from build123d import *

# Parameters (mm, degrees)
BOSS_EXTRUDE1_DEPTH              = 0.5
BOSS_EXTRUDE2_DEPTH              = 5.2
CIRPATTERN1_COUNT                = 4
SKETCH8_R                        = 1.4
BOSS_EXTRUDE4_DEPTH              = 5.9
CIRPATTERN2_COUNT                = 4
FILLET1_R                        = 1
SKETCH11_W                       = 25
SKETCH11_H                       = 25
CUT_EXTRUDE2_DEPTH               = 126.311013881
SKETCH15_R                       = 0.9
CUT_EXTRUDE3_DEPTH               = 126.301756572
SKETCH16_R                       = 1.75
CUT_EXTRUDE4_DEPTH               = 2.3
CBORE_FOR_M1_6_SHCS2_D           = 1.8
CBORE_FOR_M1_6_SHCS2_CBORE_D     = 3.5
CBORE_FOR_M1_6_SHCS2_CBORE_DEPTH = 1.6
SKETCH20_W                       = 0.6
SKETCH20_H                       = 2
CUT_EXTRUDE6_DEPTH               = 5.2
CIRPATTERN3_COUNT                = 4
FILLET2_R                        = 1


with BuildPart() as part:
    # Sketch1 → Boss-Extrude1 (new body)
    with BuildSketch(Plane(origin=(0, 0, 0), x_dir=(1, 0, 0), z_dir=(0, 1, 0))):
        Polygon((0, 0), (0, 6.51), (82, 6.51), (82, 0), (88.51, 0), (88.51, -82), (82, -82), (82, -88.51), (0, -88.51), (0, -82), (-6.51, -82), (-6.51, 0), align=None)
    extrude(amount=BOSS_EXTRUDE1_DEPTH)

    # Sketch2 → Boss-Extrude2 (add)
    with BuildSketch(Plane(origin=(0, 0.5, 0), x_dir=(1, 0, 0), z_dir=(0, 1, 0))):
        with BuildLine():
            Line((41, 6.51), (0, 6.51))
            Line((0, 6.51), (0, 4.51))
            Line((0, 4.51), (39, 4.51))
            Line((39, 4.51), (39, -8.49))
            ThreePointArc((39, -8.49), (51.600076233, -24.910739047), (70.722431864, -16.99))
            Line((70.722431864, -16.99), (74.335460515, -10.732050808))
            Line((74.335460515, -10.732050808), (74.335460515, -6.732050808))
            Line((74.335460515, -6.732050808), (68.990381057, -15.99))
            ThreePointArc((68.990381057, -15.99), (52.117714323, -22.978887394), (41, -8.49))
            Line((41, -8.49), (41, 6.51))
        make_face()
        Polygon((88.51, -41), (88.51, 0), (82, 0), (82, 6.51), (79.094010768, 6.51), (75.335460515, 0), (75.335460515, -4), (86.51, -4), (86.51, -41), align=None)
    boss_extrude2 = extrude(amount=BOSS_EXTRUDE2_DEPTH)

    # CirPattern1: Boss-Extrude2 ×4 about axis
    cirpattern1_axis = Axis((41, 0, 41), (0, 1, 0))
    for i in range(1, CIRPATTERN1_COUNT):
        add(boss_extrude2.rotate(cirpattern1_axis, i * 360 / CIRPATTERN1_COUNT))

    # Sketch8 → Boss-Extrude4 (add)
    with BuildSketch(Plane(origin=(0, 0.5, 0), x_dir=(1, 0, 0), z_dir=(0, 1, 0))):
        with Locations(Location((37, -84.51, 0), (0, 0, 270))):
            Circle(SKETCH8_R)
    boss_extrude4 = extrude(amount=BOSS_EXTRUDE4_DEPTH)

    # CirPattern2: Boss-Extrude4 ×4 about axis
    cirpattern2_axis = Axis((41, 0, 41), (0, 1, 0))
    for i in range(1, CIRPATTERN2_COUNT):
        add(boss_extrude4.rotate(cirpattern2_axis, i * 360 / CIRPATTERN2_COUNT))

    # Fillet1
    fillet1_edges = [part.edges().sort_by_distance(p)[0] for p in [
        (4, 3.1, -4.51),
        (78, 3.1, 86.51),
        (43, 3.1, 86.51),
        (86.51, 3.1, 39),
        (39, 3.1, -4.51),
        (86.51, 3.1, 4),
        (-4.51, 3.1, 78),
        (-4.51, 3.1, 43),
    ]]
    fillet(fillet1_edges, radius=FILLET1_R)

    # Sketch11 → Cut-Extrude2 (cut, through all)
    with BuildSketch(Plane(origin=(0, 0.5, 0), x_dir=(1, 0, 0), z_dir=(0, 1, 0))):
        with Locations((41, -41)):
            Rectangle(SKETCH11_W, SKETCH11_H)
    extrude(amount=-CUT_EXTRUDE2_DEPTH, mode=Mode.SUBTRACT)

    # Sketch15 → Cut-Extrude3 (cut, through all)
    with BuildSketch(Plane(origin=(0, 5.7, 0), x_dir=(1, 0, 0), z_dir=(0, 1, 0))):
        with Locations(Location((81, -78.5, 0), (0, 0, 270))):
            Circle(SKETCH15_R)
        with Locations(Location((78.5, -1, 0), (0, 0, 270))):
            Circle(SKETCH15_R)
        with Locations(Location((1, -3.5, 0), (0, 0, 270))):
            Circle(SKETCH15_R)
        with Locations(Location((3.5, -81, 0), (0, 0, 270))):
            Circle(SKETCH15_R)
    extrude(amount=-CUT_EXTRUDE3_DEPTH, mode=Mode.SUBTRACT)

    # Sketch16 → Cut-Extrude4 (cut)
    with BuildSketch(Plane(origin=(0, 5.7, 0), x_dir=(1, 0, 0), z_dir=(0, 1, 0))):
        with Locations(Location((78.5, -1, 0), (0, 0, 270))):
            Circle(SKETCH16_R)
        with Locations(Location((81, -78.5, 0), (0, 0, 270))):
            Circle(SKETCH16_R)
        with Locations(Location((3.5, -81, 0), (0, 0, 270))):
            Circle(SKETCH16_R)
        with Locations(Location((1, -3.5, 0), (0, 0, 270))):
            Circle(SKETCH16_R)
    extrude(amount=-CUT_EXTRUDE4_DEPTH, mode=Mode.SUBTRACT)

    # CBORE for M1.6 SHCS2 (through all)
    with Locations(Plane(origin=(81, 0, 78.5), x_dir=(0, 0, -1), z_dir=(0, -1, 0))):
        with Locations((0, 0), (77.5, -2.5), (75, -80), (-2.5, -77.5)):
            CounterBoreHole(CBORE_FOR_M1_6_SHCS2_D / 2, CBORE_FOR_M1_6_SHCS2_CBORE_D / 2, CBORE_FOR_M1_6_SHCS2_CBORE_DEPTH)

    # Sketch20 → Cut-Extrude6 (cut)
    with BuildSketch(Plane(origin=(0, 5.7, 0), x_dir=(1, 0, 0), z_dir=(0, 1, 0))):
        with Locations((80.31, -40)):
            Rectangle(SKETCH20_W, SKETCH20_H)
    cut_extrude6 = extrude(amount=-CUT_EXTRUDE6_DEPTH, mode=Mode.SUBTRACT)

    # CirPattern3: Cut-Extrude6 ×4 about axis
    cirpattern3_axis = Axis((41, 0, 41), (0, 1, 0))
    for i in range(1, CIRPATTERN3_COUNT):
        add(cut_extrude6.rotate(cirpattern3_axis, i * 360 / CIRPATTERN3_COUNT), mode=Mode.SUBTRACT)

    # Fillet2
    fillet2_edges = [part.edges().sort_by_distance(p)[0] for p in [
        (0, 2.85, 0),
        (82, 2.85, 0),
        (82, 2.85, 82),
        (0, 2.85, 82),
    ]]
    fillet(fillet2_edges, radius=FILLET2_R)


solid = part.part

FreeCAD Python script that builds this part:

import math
import FreeCAD as App
import Part
import Sketcher


def edges_at(feature, points):
    """Names of the edges that pass closest to the given points."""
    edges = feature.Shape.Edges
    near = lambda p: min(range(len(edges)), key=lambda i: edges[i].distToShape(Part.Vertex(*p))[0])
    return sorted({f"Edge{near(p) + 1}" for p in points})


def add_polygon(sketch, points):
    """Adds a closed chain of lines whose ends are joined by coincident constraints."""
    first, n = sketch.GeometryCount, len(points)
    for a, b in zip(points, points[1:] + points[:1]):
        sketch.addGeometry(Part.LineSegment(App.Vector(*a, 0), App.Vector(*b, 0)), False)
    for i in range(n):
        sketch.addConstraint(Sketcher.Constraint("Coincident", first + i, 2, first + (i + 1) % n, 1))

doc = App.newDocument("Part")
body = doc.addObject("PartDesign::Body", "Body")

# Sketch on XZ plane
sketch1 = body.newObject("Sketcher::SketchObject", "Sketch")
sketch1.AttachmentSupport = (doc.getObject("XZ_Plane"), [""])
sketch1.MapMode = "FlatFace"
add_polygon(sketch1, [(0, -6.51), (0, 0), (-6.51, 0), (-6.51, 82), (0, 82), (0, 88.51), (82, 88.51), (82, 82), (88.51, 82), (88.51, 0), (82, 0), (82, -6.51)])  # lines 0-11
sketch1.addConstraint([
    Sketcher.Constraint("Vertical", 0),
    Sketcher.Constraint("Horizontal", 1),
    Sketcher.Constraint("Vertical", 2),
    Sketcher.Constraint("Horizontal", 3),
    Sketcher.Constraint("Vertical", 4),
    Sketcher.Constraint("Horizontal", 5),
    Sketcher.Constraint("Vertical", 6),
    Sketcher.Constraint("Horizontal", 7),
    Sketcher.Constraint("Vertical", 8),
    Sketcher.Constraint("Horizontal", 9),
    Sketcher.Constraint("Vertical", 10),
    Sketcher.Constraint("Horizontal", 11),
    Sketcher.Constraint("Coincident", 0, 2, -1, 1),
    Sketcher.Constraint("PointOnObject", 3, 2, -2),
    Sketcher.Constraint("PointOnObject", 8, 2, -1),
    Sketcher.Constraint("Horizontal", 3, 2, 6, 2),
    Sketcher.Constraint("Vertical", 6, 2, 9, 2),
    Sketcher.Constraint("Equal", 3, 7),
    Sketcher.Constraint("Equal", 9, 0),
    Sketcher.Constraint("Equal", 11, 2),
    Sketcher.Constraint("Equal", 0, 4),
    Sketcher.Constraint("DistanceX", 5, 1, 5, 2, 82.0),
    Sketcher.Constraint("DistanceX", 1, 2, 1, 1, 6.51),
])
pad1 = body.newObject("PartDesign::Pad", "Pad")
pad1.Profile = sketch1
pad1.Length = 0.5
pad1.Reversed = True

# Sketch on XZ plane
sketch2 = body.newObject("Sketcher::SketchObject", "Sketch001")
sketch2.AttachmentSupport = (doc.getObject("XZ_Plane"), [""])
sketch2.MapMode = "FlatFace"
sketch2.AttachmentOffset = App.Placement(App.Vector(0, 0, -0.5), App.Rotation())
sketch2.addGeometry(Part.LineSegment(App.Vector(41, -6.51, 0), App.Vector(0, -6.51, 0)), False)  # 0
sketch2.addGeometry(Part.LineSegment(App.Vector(0, -6.51, 0), App.Vector(0, -4.51, 0)), False)  # 1
sketch2.addGeometry(Part.LineSegment(App.Vector(0, -4.51, 0), App.Vector(39, -4.51, 0)), False)  # 2
sketch2.addGeometry(Part.LineSegment(App.Vector(39, -4.51, 0), App.Vector(39, 8.49, 0)), False)  # 3
sketch2.addGeometry(Part.ArcOfCircle(Part.Circle(App.Vector(56, 8.49, 0), App.Vector(0, 0, 1), 17), math.radians(30), math.radians(180)), False)  # 4
sketch2.addGeometry(Part.LineSegment(App.Vector(70.722432, 16.99, 0), App.Vector(74.335461, 10.732051, 0)), False)  # 5
sketch2.addGeometry(Part.LineSegment(App.Vector(74.335461, 10.732051, 0), App.Vector(74.335461, 6.732051, 0)), False)  # 6
sketch2.addGeometry(Part.LineSegment(App.Vector(74.335461, 6.732051, 0), App.Vector(68.990381, 15.99, 0)), False)  # 7
sketch2.addGeometry(Part.ArcOfCircle(Part.Circle(App.Vector(56, 8.49, 0), App.Vector(0, 0, 1), 15), math.radians(30), math.radians(180)), False)  # 8
sketch2.addGeometry(Part.LineSegment(App.Vector(41, 8.49, 0), App.Vector(41, -6.51, 0)), False)  # 9
add_polygon(sketch2, [(88.51, 41), (88.51, 0), (82, 0), (82, -6.51), (79.094011, -6.51), (75.335461, 0), (75.335461, 4), (86.51, 4), (86.51, 41)])  # lines 10-18
sketch2.addConstraint([
    Sketcher.Constraint("Coincident", 0, 2, 1, 1),
    Sketcher.Constraint("Coincident", 1, 2, 2, 1),
    Sketcher.Constraint("Coincident", 2, 2, 3, 1),
    Sketcher.Constraint("Tangent", 3, 2, 4, 2),
    Sketcher.Constraint("Tangent", 4, 1, 5, 1),
    Sketcher.Constraint("Coincident", 5, 2, 6, 1),
    Sketcher.Constraint("Coincident", 6, 2, 7, 1),
    Sketcher.Constraint("Tangent", 7, 2, 8, 1),
    Sketcher.Constraint("Tangent", 8, 2, 9, 1),
    Sketcher.Constraint("Coincident", 9, 2, 0, 1),
    Sketcher.Constraint("Horizontal", 0),
    Sketcher.Constraint("Vertical", 1),
    Sketcher.Constraint("Horizontal", 2),
    Sketcher.Constraint("Vertical", 3),
    Sketcher.Constraint("Vertical", 6),
    Sketcher.Constraint("Vertical", 9),
    Sketcher.Constraint("Vertical", 10),
    Sketcher.Constraint("Horizontal", 11),
    Sketcher.Constraint("Vertical", 12),
    Sketcher.Constraint("Horizontal", 13),
    Sketcher.Constraint("Vertical", 15),
    Sketcher.Constraint("Horizontal", 16),
    Sketcher.Constraint("Vertical", 17),
    Sketcher.Constraint("Horizontal", 18),
    Sketcher.Constraint("Coincident", 8, 3, 4, 3),
    Sketcher.Constraint("PointOnObject", 0, 2, -2),
    Sketcher.Constraint("PointOnObject", 10, 2, -1),
    Sketcher.Constraint("PointOnObject", 14, 2, -1),
    Sketcher.Constraint("Parallel", 5, 7),
    Sketcher.Constraint("Parallel", 7, 14),
    Sketcher.Constraint("Horizontal", 9, 2, 12, 2),
    Sketcher.Constraint("Equal", 18, 1),
    Sketcher.Constraint("Equal", 0, 10),
    Sketcher.Constraint("Equal", 11, 12),
    Sketcher.Constraint("Equal", 6, 15),
    Sketcher.Constraint("Radius", 4, 17.0),
    Sketcher.Constraint("Radius", 8, 15.0),
    Sketcher.Constraint("DistanceX", 0, 2, 0, 1, 41.0),
    Sketcher.Constraint("DistanceX", 18, 1, 18, 2, 2.0),
    Sketcher.Constraint("DistanceY", 3, 1, 3, 2, 13.0),
    Sketcher.Constraint("DistanceY", 6, 2, 6, 1, 4.0),
    Sketcher.Constraint("DistanceX", -1, 1, 11, 2, 82.0),
    Sketcher.Constraint("DistanceX", 6, 2, 14, 2, 1.0),
    Sketcher.Constraint("DistanceX", 11, 2, 11, 1, 6.51),
    Sketcher.Constraint("DistanceX", 13, 2, 13, 1, 2.905989),
])
pad2 = body.newObject("PartDesign::Pad", "Pad001")
pad2.Profile = sketch2
pad2.Length = 5.2
pad2.Reversed = True
doc.recompute()

datumline = body.newObject("PartDesign::Line", "DatumLine")
datumline.Placement = App.Placement(App.Vector(41, 0, 41), App.Rotation(App.Vector(0, 0, 1), App.Vector(0, 1, 0)))
polarpattern = body.newObject("PartDesign::PolarPattern", "PolarPattern")
polarpattern.Originals = [pad2]
polarpattern.Axis = (datumline, [""])
polarpattern.Angle = 360
polarpattern.Occurrences = 4
body.Tip = polarpattern

# Sketch on XZ plane
sketch3 = body.newObject("Sketcher::SketchObject", "Sketch002")
sketch3.AttachmentSupport = (doc.getObject("XZ_Plane"), [""])
sketch3.MapMode = "FlatFace"
sketch3.AttachmentOffset = App.Placement(App.Vector(0, 0, -0.5), App.Rotation())
sketch3.addGeometry(Part.Circle(App.Vector(37, 84.51, 0), App.Vector(0, 0, 1), 1.4), False)
sketch3.addConstraint([
    Sketcher.Constraint("Diameter", 0, 2.8),
    Sketcher.Constraint("DistanceX", -1, 1, 0, 3, 37.0),
    Sketcher.Constraint("DistanceY", -1, 1, 0, 3, 84.51),
])
pad3 = body.newObject("PartDesign::Pad", "Pad002")
pad3.Profile = sketch3
pad3.Length = 5.9
pad3.Reversed = True
doc.recompute()

datumline2 = body.newObject("PartDesign::Line", "DatumLine001")
datumline2.Placement = App.Placement(App.Vector(41, 0, 41), App.Rotation(App.Vector(0, 0, 1), App.Vector(0, 1, 0)))
polarpattern2 = body.newObject("PartDesign::PolarPattern", "PolarPattern001")
polarpattern2.Originals = [pad3]
polarpattern2.Axis = (datumline2, [""])
polarpattern2.Angle = 360
polarpattern2.Occurrences = 4
body.Tip = polarpattern2
doc.recompute()

fillet = body.newObject("PartDesign::Fillet", "Fillet")
fillet.Base = (polarpattern2, edges_at(polarpattern2, [
    (4, 3.1, -4.51),
    (78, 3.1, 86.51),
    (43, 3.1, 86.51),
    (86.51, 3.1, 39),
    (39, 3.1, -4.51),
    (86.51, 3.1, 4),
    (-4.51, 3.1, 78),
    (-4.51, 3.1, 43),
]))
fillet.Radius = 1

# Sketch on XZ plane
sketch4 = body.newObject("Sketcher::SketchObject", "Sketch003")
sketch4.AttachmentSupport = (doc.getObject("XZ_Plane"), [""])
sketch4.MapMode = "FlatFace"
sketch4.AttachmentOffset = App.Placement(App.Vector(0, 0, -0.5), App.Rotation())
add_polygon(sketch4, [(28.5, 28.5), (28.5, 53.5), (53.5, 53.5), (53.5, 28.5)])  # lines 0-3
sketch4.addConstraint([
    Sketcher.Constraint("Vertical", 0),
    Sketcher.Constraint("Horizontal", 1),
    Sketcher.Constraint("Vertical", 2),
    Sketcher.Constraint("Horizontal", 3),
    Sketcher.Constraint("Equal", 3, 0),
    Sketcher.Constraint("DistanceX", 1, 1, 1, 2, 25.0),
    Sketcher.Constraint("DistanceX", -1, 1, 0, 2, 28.5),
    Sketcher.Constraint("DistanceY", -1, 1, 0, 2, 53.5),
])
pocket1 = body.newObject("PartDesign::Pocket", "Pocket")
pocket1.Profile = sketch4
pocket1.Type = "ThroughAll"
pocket1.Reversed = True

# Sketch on XZ plane
sketch5 = body.newObject("Sketcher::SketchObject", "Sketch004")
sketch5.AttachmentSupport = (doc.getObject("XZ_Plane"), [""])
sketch5.MapMode = "FlatFace"
sketch5.AttachmentOffset = App.Placement(App.Vector(0, 0, -5.7), App.Rotation())
sketch5.addGeometry([
    Part.Circle(App.Vector(81, 78.5, 0), App.Vector(0, 0, 1), 0.9),
    Part.Circle(App.Vector(78.5, 1, 0), App.Vector(0, 0, 1), 0.9),
    Part.Circle(App.Vector(1, 3.5, 0), App.Vector(0, 0, 1), 0.9),
    Part.Circle(App.Vector(3.5, 81, 0), App.Vector(0, 0, 1), 0.9),
], False)
sketch5.addConstraint([
    Sketcher.Constraint("Equal", 0, 1),
    Sketcher.Constraint("Equal", 1, 2),
    Sketcher.Constraint("Equal", 2, 3),
    Sketcher.Constraint("Diameter", 0, 1.8),
    Sketcher.Constraint("DistanceX", -1, 1, 0, 3, 81.0),
    Sketcher.Constraint("DistanceY", -1, 1, 1, 3, 1.0),
    Sketcher.Constraint("DistanceX", -1, 1, 2, 3, 1.0),
    Sketcher.Constraint("DistanceY", -1, 1, 3, 3, 81.0),
    Sketcher.Constraint("DistanceY", 2, 3, 0, 3, 75.0),
    Sketcher.Constraint("DistanceX", 3, 3, 1, 3, 75.0),
    Sketcher.Constraint("DistanceY", -1, 1, 0, 3, 78.5),
    Sketcher.Constraint("DistanceX", -1, 1, 1, 3, 78.5),
])
pocket2 = body.newObject("PartDesign::Pocket", "Pocket001")
pocket2.Profile = sketch5
pocket2.Type = "ThroughAll"
pocket2.Reversed = True

# Sketch on XZ plane
sketch6 = body.newObject("Sketcher::SketchObject", "Sketch005")
sketch6.AttachmentSupport = (doc.getObject("XZ_Plane"), [""])
sketch6.MapMode = "FlatFace"
sketch6.AttachmentOffset = App.Placement(App.Vector(0, 0, -5.7), App.Rotation())
sketch6.addGeometry([
    Part.Circle(App.Vector(78.5, 1, 0), App.Vector(0, 0, 1), 1.75),
    Part.Circle(App.Vector(81, 78.5, 0), App.Vector(0, 0, 1), 1.75),
    Part.Circle(App.Vector(3.5, 81, 0), App.Vector(0, 0, 1), 1.75),
    Part.Circle(App.Vector(1, 3.5, 0), App.Vector(0, 0, 1), 1.75),
], False)
sketch6.addConstraint([
    Sketcher.Constraint("Equal", 0, 1),
    Sketcher.Constraint("Equal", 1, 2),
    Sketcher.Constraint("Equal", 2, 3),
    Sketcher.Constraint("Diameter", 0, 3.5),
    Sketcher.Constraint("DistanceY", -1, 1, 0, 3, 1.0),
    Sketcher.Constraint("DistanceX", -1, 1, 1, 3, 81.0),
    Sketcher.Constraint("DistanceY", -1, 1, 2, 3, 81.0),
    Sketcher.Constraint("DistanceX", -1, 1, 3, 3, 1.0),
    Sketcher.Constraint("DistanceX", 2, 3, 0, 3, 75.0),
    Sketcher.Constraint("DistanceY", 3, 3, 1, 3, 75.0),
    Sketcher.Constraint("DistanceX", -1, 1, 0, 3, 78.5),
    Sketcher.Constraint("DistanceY", -1, 1, 1, 3, 78.5),
])
pocket3 = body.newObject("PartDesign::Pocket", "Pocket002")
pocket3.Profile = sketch6
pocket3.Length = 2.3
pocket3.Reversed = True

# Sketch on XZ plane
sketch7 = body.newObject("Sketcher::SketchObject", "Sketch006")
sketch7.AttachmentSupport = (doc.getObject("XZ_Plane"), [""])
sketch7.MapMode = "FlatFace"
sketch7.addGeometry([
    Part.Circle(App.Vector(81, 78.5, 0), App.Vector(0, 0, 1), 0.9),
    Part.Circle(App.Vector(78.5, 1, 0), App.Vector(0, 0, 1), 0.9),
    Part.Circle(App.Vector(1, 3.5, 0), App.Vector(0, 0, 1), 0.9),
    Part.Circle(App.Vector(3.5, 81, 0), App.Vector(0, 0, 1), 0.9),
], False)
sketch7.addConstraint([
    Sketcher.Constraint("Equal", 0, 1),
    Sketcher.Constraint("Equal", 1, 2),
    Sketcher.Constraint("Equal", 2, 3),
    Sketcher.Constraint("Diameter", 0, 1.8),
    Sketcher.Constraint("DistanceX", -1, 1, 0, 3, 81.0),
    Sketcher.Constraint("DistanceY", -1, 1, 1, 3, 1.0),
    Sketcher.Constraint("DistanceX", -1, 1, 2, 3, 1.0),
    Sketcher.Constraint("DistanceY", -1, 1, 3, 3, 81.0),
    Sketcher.Constraint("DistanceY", 2, 3, 0, 3, 75.0),
    Sketcher.Constraint("DistanceX", 3, 3, 1, 3, 75.0),
    Sketcher.Constraint("DistanceY", -1, 1, 0, 3, 78.5),
    Sketcher.Constraint("DistanceX", -1, 1, 1, 3, 78.5),
])
doc.recompute()
hole = body.newObject("PartDesign::Hole", "Hole")
hole.Profile = sketch7
hole.ThreadType = "None"
hole.Diameter = 1.8
hole.DepthType = "ThroughAll"
hole.HoleCutType = "Counterbore"
hole.HoleCutDiameter = 3.5
hole.HoleCutDepth = 1.6

# Sketch on XZ plane
sketch8 = body.newObject("Sketcher::SketchObject", "Sketch007")
sketch8.AttachmentSupport = (doc.getObject("XZ_Plane"), [""])
sketch8.MapMode = "FlatFace"
sketch8.AttachmentOffset = App.Placement(App.Vector(0, 0, -5.7), App.Rotation())
add_polygon(sketch8, [(80.01, 39), (80.01, 41), (80.61, 41), (80.61, 39)])  # lines 0-3
sketch8.addConstraint([
    Sketcher.Constraint("Vertical", 0),
    Sketcher.Constraint("Horizontal", 1),
    Sketcher.Constraint("Vertical", 2),
    Sketcher.Constraint("Horizontal", 3),
    Sketcher.Constraint("DistanceY", 0, 1, 0, 2, 2.0),
    Sketcher.Constraint("DistanceX", 1, 1, 1, 2, 0.6),
    Sketcher.Constraint("DistanceY", -1, 1, 0, 2, 41.0),
    Sketcher.Constraint("DistanceX", -1, 1, 0, 2, 80.01),
])
pocket4 = body.newObject("PartDesign::Pocket", "Pocket003")
pocket4.Profile = sketch8
pocket4.Length = 5.2
pocket4.Reversed = True
doc.recompute()

datumline3 = body.newObject("PartDesign::Line", "DatumLine002")
datumline3.Placement = App.Placement(App.Vector(41, 0, 41), App.Rotation(App.Vector(0, 0, 1), App.Vector(0, 1, 0)))
polarpattern3 = body.newObject("PartDesign::PolarPattern", "PolarPattern002")
polarpattern3.Originals = [pocket4]
polarpattern3.Axis = (datumline3, [""])
polarpattern3.Angle = 360
polarpattern3.Occurrences = 4
body.Tip = polarpattern3
doc.recompute()

fillet2 = body.newObject("PartDesign::Fillet", "Fillet001")
fillet2.Base = (polarpattern3, edges_at(polarpattern3, [
    (0, 2.85, 0),
    (82, 2.85, 0),
    (82, 2.85, 82),
    (0, 2.85, 82),
]))
fillet2.Radius = 1

doc.recompute()
